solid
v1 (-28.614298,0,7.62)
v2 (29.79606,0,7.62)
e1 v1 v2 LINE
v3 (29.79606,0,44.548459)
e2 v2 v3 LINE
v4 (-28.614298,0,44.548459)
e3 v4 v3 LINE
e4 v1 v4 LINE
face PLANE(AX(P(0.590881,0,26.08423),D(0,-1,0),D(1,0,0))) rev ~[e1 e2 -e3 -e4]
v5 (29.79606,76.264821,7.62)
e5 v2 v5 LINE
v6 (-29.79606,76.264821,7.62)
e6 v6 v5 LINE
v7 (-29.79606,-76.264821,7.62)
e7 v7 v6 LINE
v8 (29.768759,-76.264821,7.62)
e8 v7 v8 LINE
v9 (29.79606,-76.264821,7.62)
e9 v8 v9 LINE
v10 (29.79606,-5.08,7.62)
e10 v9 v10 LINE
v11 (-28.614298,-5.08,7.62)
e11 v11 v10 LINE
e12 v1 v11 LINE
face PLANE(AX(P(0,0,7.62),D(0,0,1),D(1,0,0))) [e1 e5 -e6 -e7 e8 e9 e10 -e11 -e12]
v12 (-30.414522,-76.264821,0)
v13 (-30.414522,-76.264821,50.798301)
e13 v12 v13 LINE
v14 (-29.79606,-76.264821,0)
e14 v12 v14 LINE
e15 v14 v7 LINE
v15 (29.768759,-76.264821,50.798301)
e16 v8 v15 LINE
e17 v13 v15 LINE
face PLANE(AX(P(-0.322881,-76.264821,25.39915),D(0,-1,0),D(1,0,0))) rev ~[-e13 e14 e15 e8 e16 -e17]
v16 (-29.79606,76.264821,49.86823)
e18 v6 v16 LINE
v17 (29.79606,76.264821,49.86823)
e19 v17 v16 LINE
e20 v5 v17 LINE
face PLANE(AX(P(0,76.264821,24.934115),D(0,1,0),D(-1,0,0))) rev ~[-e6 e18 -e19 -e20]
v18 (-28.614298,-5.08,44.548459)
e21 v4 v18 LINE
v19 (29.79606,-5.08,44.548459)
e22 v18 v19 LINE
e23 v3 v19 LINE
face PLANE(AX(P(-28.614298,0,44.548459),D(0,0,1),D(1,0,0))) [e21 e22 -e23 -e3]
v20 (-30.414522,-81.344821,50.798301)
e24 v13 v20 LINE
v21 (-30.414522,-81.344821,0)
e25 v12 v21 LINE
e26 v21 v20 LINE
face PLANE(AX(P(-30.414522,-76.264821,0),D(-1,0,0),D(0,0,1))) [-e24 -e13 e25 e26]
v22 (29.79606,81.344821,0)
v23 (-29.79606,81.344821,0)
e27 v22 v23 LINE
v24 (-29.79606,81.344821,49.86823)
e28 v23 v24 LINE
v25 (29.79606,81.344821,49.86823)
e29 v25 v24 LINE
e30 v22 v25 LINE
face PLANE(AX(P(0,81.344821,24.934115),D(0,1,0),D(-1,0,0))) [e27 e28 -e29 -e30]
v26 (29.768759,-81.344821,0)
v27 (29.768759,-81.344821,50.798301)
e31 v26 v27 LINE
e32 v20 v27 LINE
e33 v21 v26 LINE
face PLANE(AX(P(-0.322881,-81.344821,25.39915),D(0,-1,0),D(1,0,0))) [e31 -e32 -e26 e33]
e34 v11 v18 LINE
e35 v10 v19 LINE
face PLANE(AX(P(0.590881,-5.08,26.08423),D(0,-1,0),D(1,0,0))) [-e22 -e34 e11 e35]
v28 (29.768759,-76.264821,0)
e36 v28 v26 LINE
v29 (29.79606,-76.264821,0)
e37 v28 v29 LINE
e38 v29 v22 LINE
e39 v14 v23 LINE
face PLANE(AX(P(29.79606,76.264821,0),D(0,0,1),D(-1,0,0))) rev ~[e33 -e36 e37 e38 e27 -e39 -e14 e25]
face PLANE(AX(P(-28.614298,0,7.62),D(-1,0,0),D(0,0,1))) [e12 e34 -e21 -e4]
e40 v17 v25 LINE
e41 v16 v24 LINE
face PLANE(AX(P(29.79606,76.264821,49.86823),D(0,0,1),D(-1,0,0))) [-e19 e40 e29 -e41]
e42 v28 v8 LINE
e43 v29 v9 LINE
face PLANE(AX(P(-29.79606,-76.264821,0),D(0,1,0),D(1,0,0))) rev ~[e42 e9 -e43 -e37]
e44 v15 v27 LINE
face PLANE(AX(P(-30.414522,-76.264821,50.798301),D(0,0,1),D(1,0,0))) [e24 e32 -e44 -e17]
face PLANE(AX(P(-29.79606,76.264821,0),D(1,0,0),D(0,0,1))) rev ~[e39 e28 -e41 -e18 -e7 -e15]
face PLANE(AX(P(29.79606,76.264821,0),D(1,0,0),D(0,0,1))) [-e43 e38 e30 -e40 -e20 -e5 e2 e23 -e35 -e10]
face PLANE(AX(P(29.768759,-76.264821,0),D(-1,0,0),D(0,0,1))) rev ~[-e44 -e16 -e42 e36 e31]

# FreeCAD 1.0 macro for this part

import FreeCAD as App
import Part
import Sketcher
Q = App.Units.Quantity

doc = App.newDocument("Part")
params = doc.addObject("Spreadsheet::Sheet", "Params")
for row, (alias, value) in enumerate([
    ("pad1_length", "0.3 in"),
    ("pad2_length", "0.2 in"),
    ("pad3_length", "0.2 in"),
    ("pad4_length", "0.2 in"),
], start=1):
    params.set(f"A{row}", alias)
    params.set(f"B{row}", "=" + value)
    params.setAlias(f"B{row}", alias)

body = doc.addObject("PartDesign::Body", "Body")

sketch1 = body.newObject("Sketcher::SketchObject", "Sketch")
sketch1.AttachmentSupport = (doc.getObject("XY_Plane"), [""])
sketch1.MapMode = "FlatFace"
sketch1.addGeometry([
    Part.LineSegment(App.Vector(-30, 76, 0), App.Vector(-30, -76, 0)),
    Part.LineSegment(App.Vector(-30, -76, 0), App.Vector(30, -76, 0)),
    Part.LineSegment(App.Vector(30, -76, 0), App.Vector(30, 76, 0)),
    Part.LineSegment(App.Vector(30, 76, 0), App.Vector(-30, 76, 0)),
], False)
sketch1.addConstraint([
    Sketcher.Constraint("Coincident", 0, 2, 1, 1),
    Sketcher.Constraint("Coincident", 1, 2, 2, 1),
    Sketcher.Constraint("Coincident", 2, 2, 3, 1),
    Sketcher.Constraint("Coincident", 3, 2, 0, 1),
    Sketcher.Constraint("Vertical", 0),
    Sketcher.Constraint("Horizontal", 1),
    Sketcher.Constraint("Vertical", 2),
    Sketcher.Constraint("Horizontal", 3),
    Sketcher.Constraint("Symmetric", 0, 2, 2, 2, -1, 1),
    Sketcher.Constraint("DistanceX", 1, 1, 1, 2, 59.59212),
    Sketcher.Constraint("DistanceY", 0, 2, 0, 1, 152.529642),
])
pad1 = body.newObject("PartDesign::Pad", "Pad")
pad1.Profile = sketch1
pad1.setExpression("Length", "Params.pad1_length")

sketch2 = body.newObject("Sketcher::SketchObject", "Sketch001")
sketch2.AttachmentSupport = (doc.getObject("XZ_Plane"), [""])
sketch2.MapMode = "FlatFace"
sketch2.AttachmentOffset = App.Placement(App.Vector(0, 0, 76.264821), App.Rotation())
sketch2.addGeometry([
    Part.LineSegment(App.Vector(-30, 51, 0), App.Vector(-30, 0, 0)),
    Part.LineSegment(App.Vector(-30, 0, 0), App.Vector(30, 0, 0)),
    Part.LineSegment(App.Vector(30, 0, 0), App.Vector(30, 51, 0)),
    Part.LineSegment(App.Vector(30, 51, 0), App.Vector(-30, 51, 0)),
], False)
sketch2.addConstraint([
    Sketcher.Constraint("Coincident", 0, 2, 1, 1),
    Sketcher.Constraint("Coincident", 1, 2, 2, 1),
    Sketcher.Constraint("Coincident", 2, 2, 3, 1),
    Sketcher.Constraint("Coincident", 3, 2, 0, 1),
    Sketcher.Constraint("Vertical", 0),
    Sketcher.Constraint("Horizontal", 1),
    Sketcher.Constraint("Vertical", 2),
    Sketcher.Constraint("Horizontal", 3),
    Sketcher.Constraint("PointOnObject", 0, 2, -1),
    Sketcher.Constraint("DistanceY", 0, 2, 0, 1, 50.798301),
    Sketcher.Constraint("DistanceX", 1, 1, 1, 2, 60.183281),
    Sketcher.Constraint("DistanceX", 0, 2, -1, 1, 30.414522),
])
pad2 = body.newObject("PartDesign::Pad", "Pad001")
pad2.Profile = sketch2
pad2.setExpression("Length", "Params.pad2_length")

sketch3 = body.newObject("Sketcher::SketchObject", "Sketch002")
sketch3.AttachmentSupport = (doc.getObject("XZ_Plane"), [""])
sketch3.MapMode = "FlatFace"
sketch3.addGeometry([
    Part.LineSegment(App.Vector(-29, 45, 0), App.Vector(-29, 8, 0)),
    Part.LineSegment(App.Vector(-29, 8, 0), App.Vector(30, 8, 0)),
    Part.LineSegment(App.Vector(30, 8, 0), App.Vector(30, 45, 0)),
    Part.LineSegment(App.Vector(30, 45, 0), App.Vector(-29, 45, 0)),
], False)
sketch3.addConstraint([
    Sketcher.Constraint("Coincident", 0, 2, 1, 1),
    Sketcher.Constraint("Coincident", 1, 2, 2, 1),
    Sketcher.Constraint("Coincident", 2, 2, 3, 1),
    Sketcher.Constraint("Coincident", 3, 2, 0, 1),
    Sketcher.Constraint("Vertical", 0),
    Sketcher.Constraint("Horizontal", 1),
    Sketcher.Constraint("Vertical", 2),
    Sketcher.Constraint("Horizontal", 3),
    Sketcher.Constraint("DistanceY", -1, 1, 0, 2, Q("0.3 in")),
    Sketcher.Constraint("DistanceY", 0, 2, 0, 1, 36.928459),
    Sketcher.Constraint("DistanceX", 1, 1, 1, 2, 58.410358),
    Sketcher.Constraint("DistanceX", -1, 1, 1, 2, 29.79606),
])
pad3 = body.newObject("PartDesign::Pad", "Pad002")
pad3.Profile = sketch3
pad3.setExpression("Length", "Params.pad3_length")

sketch4 = body.newObject("Sketcher::SketchObject", "Sketch003")
sketch4.AttachmentSupport = (doc.getObject("XZ_Plane"), [""])
sketch4.MapMode = "FlatFace"
sketch4.AttachmentOffset = App.Placement(App.Vector(0, 0, -76.264821), App.Rotation())
sketch4.addGeometry([
    Part.LineSegment(App.Vector(30, 50, 0), App.Vector(30, 0, 0)),
    Part.LineSegment(App.Vector(30, 0, 0), App.Vector(-30, 0, 0)),
    Part.LineSegment(App.Vector(-30, 0, 0), App.Vector(-30, 50, 0)),
    Part.LineSegment(App.Vector(-30, 50, 0), App.Vector(30, 50, 0)),
], False)
sketch4.addConstraint([
    Sketcher.Constraint("Coincident", 0, 2, 1, 1),
    Sketcher.Constraint("Coincident", 1, 2, 2, 1),
    Sketcher.Constraint("Coincident", 2, 2, 3, 1),
    Sketcher.Constraint("Coincident", 3, 2, 0, 1),
    Sketcher.Constraint("Vertical", 0),
    Sketcher.Constraint("Horizontal", 1),
    Sketcher.Constraint("Vertical", 2),
    Sketcher.Constraint("Horizontal", 3),
    Sketcher.Constraint("Symmetric", 0, 2, 1, 2, -1, 1),
    Sketcher.Constraint("DistanceX", 1, 2, 1, 1, 59.59212),
    Sketcher.Constraint("DistanceY", 0, 2, 0, 1, 49.86823),
])
pad4 = body.newObject("PartDesign::Pad", "Pad003")
pad4.Profile = sketch4
pad4.setExpression("Length", "Params.pad4_length")
pad4.Reversed = True

doc.recompute()
